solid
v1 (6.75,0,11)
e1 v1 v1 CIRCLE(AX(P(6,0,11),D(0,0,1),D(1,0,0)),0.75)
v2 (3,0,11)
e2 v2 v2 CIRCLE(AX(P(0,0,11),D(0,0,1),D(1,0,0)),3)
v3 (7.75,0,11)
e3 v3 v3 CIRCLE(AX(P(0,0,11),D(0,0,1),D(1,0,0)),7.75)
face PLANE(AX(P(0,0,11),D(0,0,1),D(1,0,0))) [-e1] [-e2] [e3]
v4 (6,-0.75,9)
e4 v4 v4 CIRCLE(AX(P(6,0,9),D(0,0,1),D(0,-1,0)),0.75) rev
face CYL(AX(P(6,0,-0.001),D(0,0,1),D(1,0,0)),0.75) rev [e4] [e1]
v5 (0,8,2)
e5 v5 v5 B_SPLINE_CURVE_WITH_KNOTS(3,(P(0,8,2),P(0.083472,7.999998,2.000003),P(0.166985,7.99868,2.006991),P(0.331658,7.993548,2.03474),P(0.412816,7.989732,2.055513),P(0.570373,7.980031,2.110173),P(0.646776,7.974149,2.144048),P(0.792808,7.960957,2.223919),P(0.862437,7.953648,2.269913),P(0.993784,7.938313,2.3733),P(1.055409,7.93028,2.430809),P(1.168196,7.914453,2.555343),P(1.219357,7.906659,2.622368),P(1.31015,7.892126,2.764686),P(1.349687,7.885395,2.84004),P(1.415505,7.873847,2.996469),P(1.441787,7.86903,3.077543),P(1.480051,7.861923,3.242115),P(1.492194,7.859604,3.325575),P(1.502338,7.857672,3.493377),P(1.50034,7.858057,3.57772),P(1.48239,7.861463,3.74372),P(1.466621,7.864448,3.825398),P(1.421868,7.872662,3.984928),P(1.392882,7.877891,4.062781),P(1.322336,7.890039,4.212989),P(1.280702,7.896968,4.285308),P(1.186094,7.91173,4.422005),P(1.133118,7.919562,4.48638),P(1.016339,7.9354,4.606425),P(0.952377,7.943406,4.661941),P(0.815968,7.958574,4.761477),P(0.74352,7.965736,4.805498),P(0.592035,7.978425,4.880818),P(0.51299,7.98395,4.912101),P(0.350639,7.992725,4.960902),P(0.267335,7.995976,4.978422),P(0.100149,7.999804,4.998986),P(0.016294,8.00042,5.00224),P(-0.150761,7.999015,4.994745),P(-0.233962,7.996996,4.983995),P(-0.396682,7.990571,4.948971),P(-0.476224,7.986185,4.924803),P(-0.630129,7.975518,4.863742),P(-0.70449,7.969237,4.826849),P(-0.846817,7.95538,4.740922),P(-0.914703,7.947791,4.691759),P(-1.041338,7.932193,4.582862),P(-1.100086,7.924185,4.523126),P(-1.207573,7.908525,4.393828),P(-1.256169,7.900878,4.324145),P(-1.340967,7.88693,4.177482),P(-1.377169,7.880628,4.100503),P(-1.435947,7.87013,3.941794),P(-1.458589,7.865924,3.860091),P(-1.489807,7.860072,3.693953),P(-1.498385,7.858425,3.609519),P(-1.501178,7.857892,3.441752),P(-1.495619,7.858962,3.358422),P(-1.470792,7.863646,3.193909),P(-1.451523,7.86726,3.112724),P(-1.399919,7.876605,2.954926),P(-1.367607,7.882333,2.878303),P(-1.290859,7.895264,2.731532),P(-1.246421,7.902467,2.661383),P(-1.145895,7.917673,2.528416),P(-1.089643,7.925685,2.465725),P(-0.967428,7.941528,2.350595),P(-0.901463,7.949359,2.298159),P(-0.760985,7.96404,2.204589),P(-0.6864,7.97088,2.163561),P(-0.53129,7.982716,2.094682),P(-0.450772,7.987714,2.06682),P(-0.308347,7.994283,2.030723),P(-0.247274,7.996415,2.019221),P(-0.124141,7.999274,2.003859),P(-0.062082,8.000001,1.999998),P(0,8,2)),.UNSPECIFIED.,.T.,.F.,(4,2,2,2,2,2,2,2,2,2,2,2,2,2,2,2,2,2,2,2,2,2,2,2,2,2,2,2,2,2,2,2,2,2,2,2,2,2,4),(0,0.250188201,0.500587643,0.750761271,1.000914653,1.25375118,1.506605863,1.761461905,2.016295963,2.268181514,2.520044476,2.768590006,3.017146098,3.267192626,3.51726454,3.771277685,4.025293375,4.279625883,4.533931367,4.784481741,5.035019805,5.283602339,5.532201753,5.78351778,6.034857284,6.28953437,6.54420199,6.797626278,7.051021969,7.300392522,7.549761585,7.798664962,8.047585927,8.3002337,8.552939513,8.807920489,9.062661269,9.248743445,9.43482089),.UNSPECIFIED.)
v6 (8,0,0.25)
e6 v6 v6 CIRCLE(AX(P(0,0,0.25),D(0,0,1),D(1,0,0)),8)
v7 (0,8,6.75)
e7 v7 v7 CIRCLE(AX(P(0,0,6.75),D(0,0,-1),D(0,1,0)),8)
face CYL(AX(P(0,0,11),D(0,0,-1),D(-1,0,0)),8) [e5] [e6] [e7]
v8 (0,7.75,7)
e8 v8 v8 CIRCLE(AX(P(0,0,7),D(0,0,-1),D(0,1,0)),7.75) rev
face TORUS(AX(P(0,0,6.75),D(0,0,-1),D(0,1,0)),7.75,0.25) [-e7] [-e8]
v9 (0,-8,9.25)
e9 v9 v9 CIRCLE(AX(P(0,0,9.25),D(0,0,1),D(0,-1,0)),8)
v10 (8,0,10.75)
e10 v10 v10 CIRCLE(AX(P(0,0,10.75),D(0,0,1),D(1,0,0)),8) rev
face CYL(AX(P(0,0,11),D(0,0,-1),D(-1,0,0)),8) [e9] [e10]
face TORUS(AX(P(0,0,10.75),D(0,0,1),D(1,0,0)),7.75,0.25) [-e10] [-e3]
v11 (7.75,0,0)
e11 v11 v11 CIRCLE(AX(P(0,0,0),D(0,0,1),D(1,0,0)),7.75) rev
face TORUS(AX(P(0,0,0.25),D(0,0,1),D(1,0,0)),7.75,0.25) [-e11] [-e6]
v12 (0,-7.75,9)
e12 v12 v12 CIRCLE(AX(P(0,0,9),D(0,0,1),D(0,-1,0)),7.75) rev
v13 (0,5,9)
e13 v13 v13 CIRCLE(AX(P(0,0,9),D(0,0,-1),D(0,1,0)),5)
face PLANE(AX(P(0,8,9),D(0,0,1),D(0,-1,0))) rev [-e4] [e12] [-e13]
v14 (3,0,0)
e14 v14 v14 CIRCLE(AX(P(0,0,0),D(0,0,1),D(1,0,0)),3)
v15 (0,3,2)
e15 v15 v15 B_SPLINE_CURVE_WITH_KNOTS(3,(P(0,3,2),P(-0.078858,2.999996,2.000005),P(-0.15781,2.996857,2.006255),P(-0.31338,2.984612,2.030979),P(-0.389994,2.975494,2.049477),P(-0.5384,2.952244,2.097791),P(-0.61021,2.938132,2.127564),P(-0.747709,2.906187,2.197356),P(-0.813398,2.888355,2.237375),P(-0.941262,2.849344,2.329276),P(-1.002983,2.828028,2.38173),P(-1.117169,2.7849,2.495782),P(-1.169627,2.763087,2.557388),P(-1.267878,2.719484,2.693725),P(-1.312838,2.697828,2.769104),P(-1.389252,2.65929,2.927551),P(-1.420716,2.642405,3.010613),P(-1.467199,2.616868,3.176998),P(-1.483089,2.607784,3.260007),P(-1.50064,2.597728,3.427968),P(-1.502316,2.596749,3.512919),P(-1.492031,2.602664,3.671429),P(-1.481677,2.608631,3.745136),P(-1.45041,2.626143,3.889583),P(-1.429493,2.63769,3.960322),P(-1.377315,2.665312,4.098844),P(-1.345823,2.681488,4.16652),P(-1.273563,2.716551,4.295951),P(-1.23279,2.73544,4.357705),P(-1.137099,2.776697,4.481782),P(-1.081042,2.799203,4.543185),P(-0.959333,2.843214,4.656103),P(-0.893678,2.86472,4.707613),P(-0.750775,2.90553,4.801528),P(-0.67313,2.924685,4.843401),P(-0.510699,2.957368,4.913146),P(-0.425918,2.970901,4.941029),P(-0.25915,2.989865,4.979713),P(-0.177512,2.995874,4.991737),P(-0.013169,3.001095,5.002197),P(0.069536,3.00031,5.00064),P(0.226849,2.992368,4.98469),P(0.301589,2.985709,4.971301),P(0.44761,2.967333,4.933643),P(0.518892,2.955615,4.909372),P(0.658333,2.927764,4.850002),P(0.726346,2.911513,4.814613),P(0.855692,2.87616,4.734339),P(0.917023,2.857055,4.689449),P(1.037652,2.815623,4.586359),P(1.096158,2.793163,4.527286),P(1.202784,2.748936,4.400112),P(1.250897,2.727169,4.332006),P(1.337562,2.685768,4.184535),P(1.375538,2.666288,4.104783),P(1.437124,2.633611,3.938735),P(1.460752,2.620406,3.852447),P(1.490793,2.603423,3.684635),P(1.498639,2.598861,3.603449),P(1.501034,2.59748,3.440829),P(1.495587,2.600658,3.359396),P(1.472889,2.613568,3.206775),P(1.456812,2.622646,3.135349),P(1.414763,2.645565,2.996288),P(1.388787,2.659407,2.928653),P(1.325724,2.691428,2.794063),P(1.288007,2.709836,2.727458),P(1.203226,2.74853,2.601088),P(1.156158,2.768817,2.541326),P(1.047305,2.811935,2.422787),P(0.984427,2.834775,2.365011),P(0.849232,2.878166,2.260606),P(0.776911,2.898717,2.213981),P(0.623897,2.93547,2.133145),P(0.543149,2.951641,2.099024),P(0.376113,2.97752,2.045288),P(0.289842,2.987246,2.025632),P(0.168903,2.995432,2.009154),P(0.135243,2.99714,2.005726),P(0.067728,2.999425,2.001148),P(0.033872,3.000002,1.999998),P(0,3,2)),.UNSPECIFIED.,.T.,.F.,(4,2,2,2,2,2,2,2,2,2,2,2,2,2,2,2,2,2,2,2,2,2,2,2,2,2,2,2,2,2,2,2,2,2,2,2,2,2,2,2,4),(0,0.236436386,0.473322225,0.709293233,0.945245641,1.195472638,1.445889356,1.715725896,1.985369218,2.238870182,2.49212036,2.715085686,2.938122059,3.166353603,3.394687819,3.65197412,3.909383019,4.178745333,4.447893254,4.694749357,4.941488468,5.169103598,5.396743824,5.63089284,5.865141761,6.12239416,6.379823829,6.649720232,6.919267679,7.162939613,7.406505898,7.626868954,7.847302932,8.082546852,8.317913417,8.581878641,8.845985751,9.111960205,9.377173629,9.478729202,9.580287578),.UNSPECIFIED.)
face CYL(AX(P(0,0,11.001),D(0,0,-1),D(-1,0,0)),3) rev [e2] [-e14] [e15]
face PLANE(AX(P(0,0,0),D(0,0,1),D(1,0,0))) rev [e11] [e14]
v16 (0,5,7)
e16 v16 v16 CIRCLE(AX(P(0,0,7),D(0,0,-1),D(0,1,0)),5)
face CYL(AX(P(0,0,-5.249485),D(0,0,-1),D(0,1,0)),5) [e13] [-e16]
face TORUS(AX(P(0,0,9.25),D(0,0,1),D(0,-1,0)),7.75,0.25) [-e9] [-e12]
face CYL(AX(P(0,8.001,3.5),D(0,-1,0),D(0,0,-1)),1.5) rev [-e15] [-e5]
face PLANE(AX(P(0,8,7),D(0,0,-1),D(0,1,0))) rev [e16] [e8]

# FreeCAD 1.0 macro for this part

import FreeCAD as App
import Part
import Sketcher
from FreeCAD import Vector
Q = App.Units.Quantity


def edges_at(feature, points):
    """Names of the edges that pass closest to the given points."""
    edges = feature.Shape.Edges
    near = lambda p: min(range(len(edges)), key=lambda i: edges[i].distToShape(Part.Vertex(*p))[0])
    return sorted({f"Edge{near(p) + 1}" for p in points})


def add_polygon(sketch, points):
    """Adds a closed chain of lines whose ends are joined by coincident constraints."""
    first, n = sketch.GeometryCount, len(points)
    for a, b in zip(points, points[1:] + points[:1]):
        sketch.addGeometry(Part.LineSegment(App.Vector(*a, 0), App.Vector(*b, 0)), False)
    for i in range(n):
        sketch.addConstraint(Sketcher.Constraint("Coincident", first + i, 2, first + (i + 1) % n, 1))

doc = App.newDocument("Part")
body = doc.addObject("PartDesign::Body", "Body")

# Sketch on XY plane
sketch1 = doc.addObject("Sketcher::SketchObject", "Sketch")
body.addObject(sketch1)
sketch1.AttachmentSupport = (doc.XY_Plane, [""])
sketch1.MapMode = "FlatFace"
sketch1.addGeometry(Part.Circle(Vector(0, 0, 0), Vector(0, 0, 1), 8), False)
sketch1.addConstraint([
    Sketcher.Constraint("Coincident", 0, 3, -1, 1),
    Sketcher.Constraint("Diameter", 0, Q("16 mm")),
])
pad1 = doc.addObject("PartDesign::Pad", "Pad")
body.addObject(pad1)
pad1.Profile = sketch1
pad1.Length = 11

# Sketch on YZ plane
sketch2 = doc.addObject("Sketcher::SketchObject", "Sketch001")
body.addObject(sketch2)
sketch2.AttachmentSupport = (doc.YZ_Plane, [""])
sketch2.MapMode = "FlatFace"
add_polygon(sketch2, [(8, 9), (5, 9), (5, 7), (8, 7)])  # lines 0-3
sketch2.addConstraint([
    Sketcher.Constraint("Horizontal", 0),
    Sketcher.Constraint("Vertical", 1),
    Sketcher.Constraint("Horizontal", 2),
    Sketcher.Constraint("Vertical", 3),
    Sketcher.Constraint("DistanceX", 0, 2, 0, 1, Q("3 mm")),
    Sketcher.Constraint("DistanceY", 1, 2, 1, 1, Q("2 mm")),
    Sketcher.Constraint("DistanceX", -1, 1, 0, 2, Q("5 mm")),
    Sketcher.Constraint("DistanceY", -1, 1, 0, 2, Q("9 mm")),
])
groove = doc.addObject("PartDesign::Groove", "Groove")
body.addObject(groove)
groove.Profile = sketch2
groove.ReferenceAxis = (sketch2, ["V_Axis"])
groove.Angle = 360

# Sketch on XZ plane
sketch3 = doc.addObject("Sketcher::SketchObject", "Sketch002")
body.addObject(sketch3)
sketch3.AttachmentSupport = (doc.XZ_Plane, [""])
sketch3.MapMode = "FlatFace"
sketch3.AttachmentOffset = App.Placement(Vector(0, 0, -2.5), App.Rotation())
sketch3.addGeometry(Part.Circle(Vector(0, 3.5, 0), Vector(0, 0, 1), 1.5), False)
sketch3.addConstraint([
    Sketcher.Constraint("PointOnObject", 0, 3, -2),
    Sketcher.Constraint("Diameter", 0, Q("3 mm")),
    Sketcher.Constraint("DistanceY", -1, 1, 0, 3, Q("3.5 mm")),
])
pocket1 = doc.addObject("PartDesign::Pocket", "Pocket")
body.addObject(pocket1)
pocket1.Profile = sketch3
pocket1.Type = "UpToFirst"

# Sketch on XY plane
sketch4 = doc.addObject("Sketcher::SketchObject", "Sketch003")
body.addObject(sketch4)
sketch4.AttachmentSupport = (doc.XY_Plane, [""])
sketch4.MapMode = "FlatFace"
sketch4.addGeometry(Part.Circle(Vector(0, 0, 0), Vector(0, 0, 1), 3), False)
sketch4.addConstraint([
    Sketcher.Constraint("Coincident", 0, 3, -1, 1),
    Sketcher.Constraint("Diameter", 0, Q("6 mm")),
])
pocket2 = doc.addObject("PartDesign::Pocket", "Pocket001")
body.addObject(pocket2)
pocket2.Profile = sketch4
pocket2.Type = "UpToFirst"
pocket2.Reversed = True
doc.recompute()

fillet = doc.addObject("PartDesign::Fillet", "Fillet")
body.addObject(fillet)
fillet.Base = (pocket2, edges_at(pocket2, [(-8, 0, 9)]))
fillet.Radius = 0.25
doc.recompute()

fillet2 = doc.addObject("PartDesign::Fillet", "Fillet001")
body.addObject(fillet2)
fillet2.Base = (fillet, edges_at(fillet, [(-8, 0, 7)]))
fillet2.Radius = 0.25
doc.recompute()

fillet3 = doc.addObject("PartDesign::Fillet", "Fillet002")
body.addObject(fillet3)
fillet3.Base = (fillet2, edges_at(fillet2, [(-8, 0, 0), (-8, 0, 11)]))
fillet3.Radius = 0.25

# Sketch on XY plane
sketch5 = doc.addObject("Sketcher::SketchObject", "Sketch004")
body.addObject(sketch5)
sketch5.AttachmentSupport = (doc.XY_Plane, [""])
sketch5.MapMode = "FlatFace"
sketch5.AttachmentOffset = App.Placement(Vector(0, 0, 11), App.Rotation())
sketch5.addGeometry(Part.Circle(Vector(6, 0, 0), Vector(0, 0, 1), 0.8), False)
sketch5.addConstraint([
    Sketcher.Constraint("PointOnObject", 0, 3, -1),
    Sketcher.Constraint("Diameter", 0, Q("1.5 mm")),
    Sketcher.Constraint("DistanceX", -1, 1, 0, 3, Q("6 mm")),
])
pocket3 = doc.addObject("PartDesign::Pocket", "Pocket002")
body.addObject(pocket3)
pocket3.Profile = sketch5
pocket3.Type = "UpToFirst"

doc.recompute()
